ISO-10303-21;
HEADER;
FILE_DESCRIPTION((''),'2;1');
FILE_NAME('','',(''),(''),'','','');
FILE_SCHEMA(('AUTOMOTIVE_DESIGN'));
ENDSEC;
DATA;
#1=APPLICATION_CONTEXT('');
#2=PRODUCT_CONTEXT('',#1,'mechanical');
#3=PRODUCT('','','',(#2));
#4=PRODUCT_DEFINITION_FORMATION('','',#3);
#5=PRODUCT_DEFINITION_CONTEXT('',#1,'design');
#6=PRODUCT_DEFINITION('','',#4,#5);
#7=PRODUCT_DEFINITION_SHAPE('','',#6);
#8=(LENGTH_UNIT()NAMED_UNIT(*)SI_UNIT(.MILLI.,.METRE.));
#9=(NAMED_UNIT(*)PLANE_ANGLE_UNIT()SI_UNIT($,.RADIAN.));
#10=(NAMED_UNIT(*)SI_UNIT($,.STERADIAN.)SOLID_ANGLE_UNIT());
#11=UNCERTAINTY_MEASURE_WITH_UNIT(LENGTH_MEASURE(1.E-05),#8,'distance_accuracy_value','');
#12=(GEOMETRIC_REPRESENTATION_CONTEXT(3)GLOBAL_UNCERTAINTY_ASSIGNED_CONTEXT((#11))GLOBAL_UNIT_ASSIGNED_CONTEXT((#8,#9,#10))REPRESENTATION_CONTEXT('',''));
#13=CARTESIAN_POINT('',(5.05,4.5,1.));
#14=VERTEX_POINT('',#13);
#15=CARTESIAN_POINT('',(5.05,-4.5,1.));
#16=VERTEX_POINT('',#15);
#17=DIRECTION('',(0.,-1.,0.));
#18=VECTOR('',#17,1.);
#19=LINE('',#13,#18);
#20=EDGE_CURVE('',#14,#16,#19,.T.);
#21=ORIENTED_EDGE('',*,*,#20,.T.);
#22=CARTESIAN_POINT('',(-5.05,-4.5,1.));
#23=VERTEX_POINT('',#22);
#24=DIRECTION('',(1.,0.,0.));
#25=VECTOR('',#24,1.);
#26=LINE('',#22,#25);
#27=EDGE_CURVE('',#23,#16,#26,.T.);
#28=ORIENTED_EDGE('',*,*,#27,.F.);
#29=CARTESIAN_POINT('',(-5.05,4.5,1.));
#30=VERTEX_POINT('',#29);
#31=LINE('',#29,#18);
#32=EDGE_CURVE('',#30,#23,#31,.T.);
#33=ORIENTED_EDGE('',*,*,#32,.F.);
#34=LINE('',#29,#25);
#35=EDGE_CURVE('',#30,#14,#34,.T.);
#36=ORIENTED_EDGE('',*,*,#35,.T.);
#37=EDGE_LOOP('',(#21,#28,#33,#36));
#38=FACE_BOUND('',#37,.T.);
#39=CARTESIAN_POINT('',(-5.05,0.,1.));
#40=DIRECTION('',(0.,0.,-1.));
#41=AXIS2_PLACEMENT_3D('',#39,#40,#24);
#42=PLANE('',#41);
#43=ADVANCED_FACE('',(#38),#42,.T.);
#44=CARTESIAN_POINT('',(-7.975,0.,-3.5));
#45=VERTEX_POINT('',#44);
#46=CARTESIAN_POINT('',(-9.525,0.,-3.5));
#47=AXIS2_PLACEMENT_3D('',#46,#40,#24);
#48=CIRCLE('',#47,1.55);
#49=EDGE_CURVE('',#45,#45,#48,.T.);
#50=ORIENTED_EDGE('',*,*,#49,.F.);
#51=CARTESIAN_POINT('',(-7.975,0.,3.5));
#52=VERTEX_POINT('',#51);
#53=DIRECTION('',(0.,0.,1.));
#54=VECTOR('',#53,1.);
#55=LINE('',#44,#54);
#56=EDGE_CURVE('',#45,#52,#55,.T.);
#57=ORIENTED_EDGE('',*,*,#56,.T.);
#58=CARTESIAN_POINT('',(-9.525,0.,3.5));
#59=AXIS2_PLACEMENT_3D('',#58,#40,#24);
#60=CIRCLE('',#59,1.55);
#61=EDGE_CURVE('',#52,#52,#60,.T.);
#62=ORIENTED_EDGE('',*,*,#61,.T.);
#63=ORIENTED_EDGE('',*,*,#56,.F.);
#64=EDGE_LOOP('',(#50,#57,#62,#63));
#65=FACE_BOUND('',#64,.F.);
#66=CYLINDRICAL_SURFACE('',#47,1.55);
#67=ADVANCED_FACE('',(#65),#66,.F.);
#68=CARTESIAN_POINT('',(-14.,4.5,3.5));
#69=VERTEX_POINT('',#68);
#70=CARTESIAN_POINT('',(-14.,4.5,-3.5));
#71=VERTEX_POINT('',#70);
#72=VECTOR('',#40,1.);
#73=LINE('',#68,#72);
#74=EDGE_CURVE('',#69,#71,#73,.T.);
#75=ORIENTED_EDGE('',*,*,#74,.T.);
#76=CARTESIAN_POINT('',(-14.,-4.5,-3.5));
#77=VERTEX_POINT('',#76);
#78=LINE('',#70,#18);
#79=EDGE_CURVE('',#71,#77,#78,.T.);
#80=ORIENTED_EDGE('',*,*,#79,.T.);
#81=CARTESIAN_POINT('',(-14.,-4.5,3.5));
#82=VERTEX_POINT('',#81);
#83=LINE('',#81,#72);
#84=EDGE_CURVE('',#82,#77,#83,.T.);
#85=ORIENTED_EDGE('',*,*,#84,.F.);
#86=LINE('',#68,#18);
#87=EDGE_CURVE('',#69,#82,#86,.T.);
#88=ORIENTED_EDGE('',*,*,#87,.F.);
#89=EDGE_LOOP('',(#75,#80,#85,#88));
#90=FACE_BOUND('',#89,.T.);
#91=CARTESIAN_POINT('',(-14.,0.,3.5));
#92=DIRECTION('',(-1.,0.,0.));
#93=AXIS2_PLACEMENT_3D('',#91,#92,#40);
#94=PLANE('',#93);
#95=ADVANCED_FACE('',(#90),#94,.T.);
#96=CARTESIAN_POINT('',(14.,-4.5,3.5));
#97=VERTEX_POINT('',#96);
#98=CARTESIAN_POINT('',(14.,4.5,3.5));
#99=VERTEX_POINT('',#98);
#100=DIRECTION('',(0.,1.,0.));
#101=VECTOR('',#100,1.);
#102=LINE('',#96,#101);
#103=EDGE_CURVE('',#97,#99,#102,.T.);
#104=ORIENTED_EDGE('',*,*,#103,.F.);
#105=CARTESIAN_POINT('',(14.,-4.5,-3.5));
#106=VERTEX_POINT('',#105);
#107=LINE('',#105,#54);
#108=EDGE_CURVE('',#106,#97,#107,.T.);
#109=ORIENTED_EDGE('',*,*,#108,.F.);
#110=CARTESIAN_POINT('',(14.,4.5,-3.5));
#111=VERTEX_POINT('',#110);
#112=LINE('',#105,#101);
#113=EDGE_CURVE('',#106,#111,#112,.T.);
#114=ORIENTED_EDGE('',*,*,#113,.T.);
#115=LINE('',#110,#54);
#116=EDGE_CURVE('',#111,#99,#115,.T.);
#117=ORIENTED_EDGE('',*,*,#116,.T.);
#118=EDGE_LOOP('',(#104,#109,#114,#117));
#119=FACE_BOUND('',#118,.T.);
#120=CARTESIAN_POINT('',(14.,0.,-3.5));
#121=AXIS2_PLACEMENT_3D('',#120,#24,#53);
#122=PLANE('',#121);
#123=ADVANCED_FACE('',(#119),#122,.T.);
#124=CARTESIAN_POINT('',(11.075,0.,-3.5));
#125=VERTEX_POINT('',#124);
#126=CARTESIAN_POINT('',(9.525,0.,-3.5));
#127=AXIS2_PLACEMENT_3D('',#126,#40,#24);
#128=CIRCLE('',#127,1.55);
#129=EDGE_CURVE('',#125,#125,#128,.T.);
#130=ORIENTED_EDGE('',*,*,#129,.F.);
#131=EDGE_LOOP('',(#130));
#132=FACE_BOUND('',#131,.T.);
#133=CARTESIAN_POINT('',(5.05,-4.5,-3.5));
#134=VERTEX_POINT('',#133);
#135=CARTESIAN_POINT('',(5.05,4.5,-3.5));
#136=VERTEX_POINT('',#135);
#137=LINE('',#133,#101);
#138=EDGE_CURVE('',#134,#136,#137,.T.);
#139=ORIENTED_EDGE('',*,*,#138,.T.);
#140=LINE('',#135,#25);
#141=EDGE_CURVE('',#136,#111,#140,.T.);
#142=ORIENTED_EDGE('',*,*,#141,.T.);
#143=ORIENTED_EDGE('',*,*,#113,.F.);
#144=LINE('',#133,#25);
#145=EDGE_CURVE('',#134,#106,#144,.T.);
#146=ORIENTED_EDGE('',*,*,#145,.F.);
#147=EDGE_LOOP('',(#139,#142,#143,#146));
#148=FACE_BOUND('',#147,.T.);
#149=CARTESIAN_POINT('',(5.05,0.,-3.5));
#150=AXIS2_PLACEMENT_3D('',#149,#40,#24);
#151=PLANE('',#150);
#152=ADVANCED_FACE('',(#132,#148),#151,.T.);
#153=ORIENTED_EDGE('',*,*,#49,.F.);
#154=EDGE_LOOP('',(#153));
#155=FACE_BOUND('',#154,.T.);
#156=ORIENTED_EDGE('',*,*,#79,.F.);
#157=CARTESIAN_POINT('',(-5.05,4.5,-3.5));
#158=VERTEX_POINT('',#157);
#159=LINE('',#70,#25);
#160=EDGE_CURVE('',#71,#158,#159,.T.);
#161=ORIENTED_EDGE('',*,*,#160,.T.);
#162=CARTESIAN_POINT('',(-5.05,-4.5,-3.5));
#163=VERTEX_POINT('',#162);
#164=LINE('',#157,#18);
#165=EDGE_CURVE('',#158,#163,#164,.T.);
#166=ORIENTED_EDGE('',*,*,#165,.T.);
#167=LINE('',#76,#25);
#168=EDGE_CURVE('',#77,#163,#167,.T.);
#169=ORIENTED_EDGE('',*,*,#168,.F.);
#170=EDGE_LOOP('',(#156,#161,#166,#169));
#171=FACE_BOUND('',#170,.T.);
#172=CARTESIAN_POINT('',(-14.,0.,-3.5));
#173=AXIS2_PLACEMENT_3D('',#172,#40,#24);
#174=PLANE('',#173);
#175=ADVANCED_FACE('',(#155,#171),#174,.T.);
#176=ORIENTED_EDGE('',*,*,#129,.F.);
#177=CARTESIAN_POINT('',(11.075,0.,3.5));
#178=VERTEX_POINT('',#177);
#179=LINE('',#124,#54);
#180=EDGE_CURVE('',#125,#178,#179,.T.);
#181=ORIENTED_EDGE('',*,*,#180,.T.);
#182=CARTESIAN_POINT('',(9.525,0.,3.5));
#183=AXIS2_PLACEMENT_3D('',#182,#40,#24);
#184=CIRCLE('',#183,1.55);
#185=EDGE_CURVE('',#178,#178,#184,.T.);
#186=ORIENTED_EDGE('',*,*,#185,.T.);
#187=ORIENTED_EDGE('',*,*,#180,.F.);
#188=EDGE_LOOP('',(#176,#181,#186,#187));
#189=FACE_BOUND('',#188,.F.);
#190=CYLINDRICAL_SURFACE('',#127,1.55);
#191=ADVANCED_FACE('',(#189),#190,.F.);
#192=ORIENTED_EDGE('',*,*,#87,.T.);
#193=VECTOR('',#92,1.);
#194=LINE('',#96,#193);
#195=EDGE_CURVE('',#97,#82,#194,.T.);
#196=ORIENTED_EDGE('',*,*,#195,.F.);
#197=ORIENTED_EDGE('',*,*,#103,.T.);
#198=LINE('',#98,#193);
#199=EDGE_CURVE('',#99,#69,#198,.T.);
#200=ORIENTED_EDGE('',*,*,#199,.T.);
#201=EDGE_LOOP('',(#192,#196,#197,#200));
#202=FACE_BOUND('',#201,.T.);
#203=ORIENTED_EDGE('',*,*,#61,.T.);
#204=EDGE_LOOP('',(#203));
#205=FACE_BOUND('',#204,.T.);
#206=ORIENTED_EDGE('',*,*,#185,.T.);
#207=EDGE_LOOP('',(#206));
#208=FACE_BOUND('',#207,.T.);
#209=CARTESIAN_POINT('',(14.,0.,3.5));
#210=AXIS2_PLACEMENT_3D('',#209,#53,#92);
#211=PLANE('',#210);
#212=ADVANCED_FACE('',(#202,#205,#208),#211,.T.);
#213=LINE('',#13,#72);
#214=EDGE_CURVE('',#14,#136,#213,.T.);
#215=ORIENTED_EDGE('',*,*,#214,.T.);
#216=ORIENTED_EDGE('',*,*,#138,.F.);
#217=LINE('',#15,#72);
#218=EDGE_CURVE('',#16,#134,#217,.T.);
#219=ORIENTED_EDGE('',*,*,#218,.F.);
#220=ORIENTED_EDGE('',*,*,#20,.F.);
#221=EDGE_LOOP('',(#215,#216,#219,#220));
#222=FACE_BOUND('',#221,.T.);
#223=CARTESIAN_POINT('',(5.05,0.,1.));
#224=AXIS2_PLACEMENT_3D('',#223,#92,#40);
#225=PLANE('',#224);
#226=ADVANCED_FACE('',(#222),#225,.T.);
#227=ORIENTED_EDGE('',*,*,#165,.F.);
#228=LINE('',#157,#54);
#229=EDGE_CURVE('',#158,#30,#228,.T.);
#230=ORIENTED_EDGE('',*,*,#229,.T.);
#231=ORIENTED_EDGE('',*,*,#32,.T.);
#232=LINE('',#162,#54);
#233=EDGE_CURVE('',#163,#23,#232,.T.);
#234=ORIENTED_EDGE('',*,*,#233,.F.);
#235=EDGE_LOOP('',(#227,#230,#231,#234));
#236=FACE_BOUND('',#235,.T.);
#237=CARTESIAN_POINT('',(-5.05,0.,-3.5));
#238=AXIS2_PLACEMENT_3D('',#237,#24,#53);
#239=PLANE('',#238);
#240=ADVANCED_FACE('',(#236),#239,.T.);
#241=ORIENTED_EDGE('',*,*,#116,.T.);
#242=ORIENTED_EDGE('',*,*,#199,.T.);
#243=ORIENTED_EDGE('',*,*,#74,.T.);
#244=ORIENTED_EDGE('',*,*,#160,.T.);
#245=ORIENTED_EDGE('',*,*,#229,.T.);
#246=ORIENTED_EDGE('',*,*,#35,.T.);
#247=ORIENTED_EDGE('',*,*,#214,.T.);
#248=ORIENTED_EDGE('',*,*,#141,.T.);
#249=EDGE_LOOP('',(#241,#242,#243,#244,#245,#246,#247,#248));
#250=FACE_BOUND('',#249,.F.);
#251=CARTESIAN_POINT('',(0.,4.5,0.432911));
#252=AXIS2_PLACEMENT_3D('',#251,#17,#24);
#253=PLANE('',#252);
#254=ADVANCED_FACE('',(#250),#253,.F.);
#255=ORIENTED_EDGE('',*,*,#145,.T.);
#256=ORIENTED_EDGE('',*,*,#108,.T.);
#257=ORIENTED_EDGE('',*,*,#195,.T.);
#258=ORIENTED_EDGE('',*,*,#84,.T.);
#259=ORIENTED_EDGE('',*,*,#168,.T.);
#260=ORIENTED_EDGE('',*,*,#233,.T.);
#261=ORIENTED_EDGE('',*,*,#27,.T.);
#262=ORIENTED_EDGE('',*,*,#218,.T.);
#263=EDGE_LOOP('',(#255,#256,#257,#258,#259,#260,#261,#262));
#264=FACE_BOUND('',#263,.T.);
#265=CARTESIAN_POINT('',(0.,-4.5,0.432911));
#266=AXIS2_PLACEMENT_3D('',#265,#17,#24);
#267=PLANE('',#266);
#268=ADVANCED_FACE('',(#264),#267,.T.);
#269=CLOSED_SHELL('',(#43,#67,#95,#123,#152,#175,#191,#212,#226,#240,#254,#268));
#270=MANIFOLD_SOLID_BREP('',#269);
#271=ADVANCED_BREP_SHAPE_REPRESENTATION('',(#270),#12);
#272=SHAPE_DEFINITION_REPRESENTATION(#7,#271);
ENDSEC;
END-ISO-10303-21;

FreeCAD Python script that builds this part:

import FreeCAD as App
import Part
import Sketcher
from FreeCAD import Vector


def add_polygon(sketch, points):
    """Adds a closed chain of lines whose ends are joined by coincident constraints."""
    first, n = sketch.GeometryCount, len(points)
    for a, b in zip(points, points[1:] + points[:1]):
        sketch.addGeometry(Part.LineSegment(App.Vector(*a, 0), App.Vector(*b, 0)), False)
    for i in range(n):
        sketch.addConstraint(Sketcher.Constraint("Coincident", first + i, 2, first + (i + 1) % n, 1))

doc = App.newDocument("Part")
body = doc.addObject("PartDesign::Body", "Body")

# Sketch on XZ plane
sketch1 = body.newObject("Sketcher::SketchObject", "Sketch")
sketch1.AttachmentSupport = (doc.getObject("XZ_Plane"), [""])
sketch1.MapMode = "FlatFace"
add_polygon(sketch1, [(14, 3.5), (-14, 3.5), (-14, -3.5), (-5.05, -3.5), (-5.05, 1), (5.05, 1), (5.05, -3.5), (14, -3.5)])  # lines 0-7
sketch1.addConstraint([
    Sketcher.Constraint("Horizontal", 0),
    Sketcher.Constraint("Vertical", 1),
    Sketcher.Constraint("Horizontal", 2),
    Sketcher.Constraint("Vertical", 3),
    Sketcher.Constraint("Horizontal", 4),
    Sketcher.Constraint("Vertical", 5),
    Sketcher.Constraint("Horizontal", 6),
    Sketcher.Constraint("Vertical", 7),
    Sketcher.Constraint("Symmetric", 0, 2, 6, 2, -1, 1),
    Sketcher.Constraint("Symmetric", 2, 2, 5, 2, -2),
    Sketcher.Constraint("DistanceX", 0, 2, 0, 1, 28.0),
    Sketcher.Constraint("DistanceY", 1, 2, 1, 1, 7.0),
    Sketcher.Constraint("DistanceX", 4, 1, 4, 2, 10.1),
    Sketcher.Constraint("DistanceY", 3, 1, 3, 2, 4.5),
])
pad1 = body.newObject("PartDesign::Pad", "Pad")
pad1.Profile = sketch1
pad1.Length = 9
pad1.Midplane = True

# Sketch on XY plane
sketch2 = body.newObject("Sketcher::SketchObject", "Sketch001")
sketch2.AttachmentSupport = (doc.getObject("XY_Plane"), [""])
sketch2.MapMode = "FlatFace"
sketch2.AttachmentOffset = App.Placement(Vector(0, 0, -3.5), App.Rotation())
sketch2.addGeometry([
    Part.Circle(Vector(9.525, 0, 0), Vector(0, 0, 1), 1.55),
    Part.Circle(Vector(-9.525, 0, 0), Vector(0, 0, 1), 1.55),
], False)
sketch2.addConstraint([
    Sketcher.Constraint("Equal", 0, 1),
    Sketcher.Constraint("Symmetric", 0, 3, 1, 3, -1, 1),
    Sketcher.Constraint("PointOnObject", 0, 3, -1),
    Sketcher.Constraint("Diameter", 0, 3.1),
    Sketcher.Constraint("DistanceX", 1, 3, 0, 3, 19.05),
])
pocket1 = body.newObject("PartDesign::Pocket", "Pocket")
pocket1.Profile = sketch2
pocket1.Type = "ThroughAll"
pocket1.Reversed = True

doc.recompute()
